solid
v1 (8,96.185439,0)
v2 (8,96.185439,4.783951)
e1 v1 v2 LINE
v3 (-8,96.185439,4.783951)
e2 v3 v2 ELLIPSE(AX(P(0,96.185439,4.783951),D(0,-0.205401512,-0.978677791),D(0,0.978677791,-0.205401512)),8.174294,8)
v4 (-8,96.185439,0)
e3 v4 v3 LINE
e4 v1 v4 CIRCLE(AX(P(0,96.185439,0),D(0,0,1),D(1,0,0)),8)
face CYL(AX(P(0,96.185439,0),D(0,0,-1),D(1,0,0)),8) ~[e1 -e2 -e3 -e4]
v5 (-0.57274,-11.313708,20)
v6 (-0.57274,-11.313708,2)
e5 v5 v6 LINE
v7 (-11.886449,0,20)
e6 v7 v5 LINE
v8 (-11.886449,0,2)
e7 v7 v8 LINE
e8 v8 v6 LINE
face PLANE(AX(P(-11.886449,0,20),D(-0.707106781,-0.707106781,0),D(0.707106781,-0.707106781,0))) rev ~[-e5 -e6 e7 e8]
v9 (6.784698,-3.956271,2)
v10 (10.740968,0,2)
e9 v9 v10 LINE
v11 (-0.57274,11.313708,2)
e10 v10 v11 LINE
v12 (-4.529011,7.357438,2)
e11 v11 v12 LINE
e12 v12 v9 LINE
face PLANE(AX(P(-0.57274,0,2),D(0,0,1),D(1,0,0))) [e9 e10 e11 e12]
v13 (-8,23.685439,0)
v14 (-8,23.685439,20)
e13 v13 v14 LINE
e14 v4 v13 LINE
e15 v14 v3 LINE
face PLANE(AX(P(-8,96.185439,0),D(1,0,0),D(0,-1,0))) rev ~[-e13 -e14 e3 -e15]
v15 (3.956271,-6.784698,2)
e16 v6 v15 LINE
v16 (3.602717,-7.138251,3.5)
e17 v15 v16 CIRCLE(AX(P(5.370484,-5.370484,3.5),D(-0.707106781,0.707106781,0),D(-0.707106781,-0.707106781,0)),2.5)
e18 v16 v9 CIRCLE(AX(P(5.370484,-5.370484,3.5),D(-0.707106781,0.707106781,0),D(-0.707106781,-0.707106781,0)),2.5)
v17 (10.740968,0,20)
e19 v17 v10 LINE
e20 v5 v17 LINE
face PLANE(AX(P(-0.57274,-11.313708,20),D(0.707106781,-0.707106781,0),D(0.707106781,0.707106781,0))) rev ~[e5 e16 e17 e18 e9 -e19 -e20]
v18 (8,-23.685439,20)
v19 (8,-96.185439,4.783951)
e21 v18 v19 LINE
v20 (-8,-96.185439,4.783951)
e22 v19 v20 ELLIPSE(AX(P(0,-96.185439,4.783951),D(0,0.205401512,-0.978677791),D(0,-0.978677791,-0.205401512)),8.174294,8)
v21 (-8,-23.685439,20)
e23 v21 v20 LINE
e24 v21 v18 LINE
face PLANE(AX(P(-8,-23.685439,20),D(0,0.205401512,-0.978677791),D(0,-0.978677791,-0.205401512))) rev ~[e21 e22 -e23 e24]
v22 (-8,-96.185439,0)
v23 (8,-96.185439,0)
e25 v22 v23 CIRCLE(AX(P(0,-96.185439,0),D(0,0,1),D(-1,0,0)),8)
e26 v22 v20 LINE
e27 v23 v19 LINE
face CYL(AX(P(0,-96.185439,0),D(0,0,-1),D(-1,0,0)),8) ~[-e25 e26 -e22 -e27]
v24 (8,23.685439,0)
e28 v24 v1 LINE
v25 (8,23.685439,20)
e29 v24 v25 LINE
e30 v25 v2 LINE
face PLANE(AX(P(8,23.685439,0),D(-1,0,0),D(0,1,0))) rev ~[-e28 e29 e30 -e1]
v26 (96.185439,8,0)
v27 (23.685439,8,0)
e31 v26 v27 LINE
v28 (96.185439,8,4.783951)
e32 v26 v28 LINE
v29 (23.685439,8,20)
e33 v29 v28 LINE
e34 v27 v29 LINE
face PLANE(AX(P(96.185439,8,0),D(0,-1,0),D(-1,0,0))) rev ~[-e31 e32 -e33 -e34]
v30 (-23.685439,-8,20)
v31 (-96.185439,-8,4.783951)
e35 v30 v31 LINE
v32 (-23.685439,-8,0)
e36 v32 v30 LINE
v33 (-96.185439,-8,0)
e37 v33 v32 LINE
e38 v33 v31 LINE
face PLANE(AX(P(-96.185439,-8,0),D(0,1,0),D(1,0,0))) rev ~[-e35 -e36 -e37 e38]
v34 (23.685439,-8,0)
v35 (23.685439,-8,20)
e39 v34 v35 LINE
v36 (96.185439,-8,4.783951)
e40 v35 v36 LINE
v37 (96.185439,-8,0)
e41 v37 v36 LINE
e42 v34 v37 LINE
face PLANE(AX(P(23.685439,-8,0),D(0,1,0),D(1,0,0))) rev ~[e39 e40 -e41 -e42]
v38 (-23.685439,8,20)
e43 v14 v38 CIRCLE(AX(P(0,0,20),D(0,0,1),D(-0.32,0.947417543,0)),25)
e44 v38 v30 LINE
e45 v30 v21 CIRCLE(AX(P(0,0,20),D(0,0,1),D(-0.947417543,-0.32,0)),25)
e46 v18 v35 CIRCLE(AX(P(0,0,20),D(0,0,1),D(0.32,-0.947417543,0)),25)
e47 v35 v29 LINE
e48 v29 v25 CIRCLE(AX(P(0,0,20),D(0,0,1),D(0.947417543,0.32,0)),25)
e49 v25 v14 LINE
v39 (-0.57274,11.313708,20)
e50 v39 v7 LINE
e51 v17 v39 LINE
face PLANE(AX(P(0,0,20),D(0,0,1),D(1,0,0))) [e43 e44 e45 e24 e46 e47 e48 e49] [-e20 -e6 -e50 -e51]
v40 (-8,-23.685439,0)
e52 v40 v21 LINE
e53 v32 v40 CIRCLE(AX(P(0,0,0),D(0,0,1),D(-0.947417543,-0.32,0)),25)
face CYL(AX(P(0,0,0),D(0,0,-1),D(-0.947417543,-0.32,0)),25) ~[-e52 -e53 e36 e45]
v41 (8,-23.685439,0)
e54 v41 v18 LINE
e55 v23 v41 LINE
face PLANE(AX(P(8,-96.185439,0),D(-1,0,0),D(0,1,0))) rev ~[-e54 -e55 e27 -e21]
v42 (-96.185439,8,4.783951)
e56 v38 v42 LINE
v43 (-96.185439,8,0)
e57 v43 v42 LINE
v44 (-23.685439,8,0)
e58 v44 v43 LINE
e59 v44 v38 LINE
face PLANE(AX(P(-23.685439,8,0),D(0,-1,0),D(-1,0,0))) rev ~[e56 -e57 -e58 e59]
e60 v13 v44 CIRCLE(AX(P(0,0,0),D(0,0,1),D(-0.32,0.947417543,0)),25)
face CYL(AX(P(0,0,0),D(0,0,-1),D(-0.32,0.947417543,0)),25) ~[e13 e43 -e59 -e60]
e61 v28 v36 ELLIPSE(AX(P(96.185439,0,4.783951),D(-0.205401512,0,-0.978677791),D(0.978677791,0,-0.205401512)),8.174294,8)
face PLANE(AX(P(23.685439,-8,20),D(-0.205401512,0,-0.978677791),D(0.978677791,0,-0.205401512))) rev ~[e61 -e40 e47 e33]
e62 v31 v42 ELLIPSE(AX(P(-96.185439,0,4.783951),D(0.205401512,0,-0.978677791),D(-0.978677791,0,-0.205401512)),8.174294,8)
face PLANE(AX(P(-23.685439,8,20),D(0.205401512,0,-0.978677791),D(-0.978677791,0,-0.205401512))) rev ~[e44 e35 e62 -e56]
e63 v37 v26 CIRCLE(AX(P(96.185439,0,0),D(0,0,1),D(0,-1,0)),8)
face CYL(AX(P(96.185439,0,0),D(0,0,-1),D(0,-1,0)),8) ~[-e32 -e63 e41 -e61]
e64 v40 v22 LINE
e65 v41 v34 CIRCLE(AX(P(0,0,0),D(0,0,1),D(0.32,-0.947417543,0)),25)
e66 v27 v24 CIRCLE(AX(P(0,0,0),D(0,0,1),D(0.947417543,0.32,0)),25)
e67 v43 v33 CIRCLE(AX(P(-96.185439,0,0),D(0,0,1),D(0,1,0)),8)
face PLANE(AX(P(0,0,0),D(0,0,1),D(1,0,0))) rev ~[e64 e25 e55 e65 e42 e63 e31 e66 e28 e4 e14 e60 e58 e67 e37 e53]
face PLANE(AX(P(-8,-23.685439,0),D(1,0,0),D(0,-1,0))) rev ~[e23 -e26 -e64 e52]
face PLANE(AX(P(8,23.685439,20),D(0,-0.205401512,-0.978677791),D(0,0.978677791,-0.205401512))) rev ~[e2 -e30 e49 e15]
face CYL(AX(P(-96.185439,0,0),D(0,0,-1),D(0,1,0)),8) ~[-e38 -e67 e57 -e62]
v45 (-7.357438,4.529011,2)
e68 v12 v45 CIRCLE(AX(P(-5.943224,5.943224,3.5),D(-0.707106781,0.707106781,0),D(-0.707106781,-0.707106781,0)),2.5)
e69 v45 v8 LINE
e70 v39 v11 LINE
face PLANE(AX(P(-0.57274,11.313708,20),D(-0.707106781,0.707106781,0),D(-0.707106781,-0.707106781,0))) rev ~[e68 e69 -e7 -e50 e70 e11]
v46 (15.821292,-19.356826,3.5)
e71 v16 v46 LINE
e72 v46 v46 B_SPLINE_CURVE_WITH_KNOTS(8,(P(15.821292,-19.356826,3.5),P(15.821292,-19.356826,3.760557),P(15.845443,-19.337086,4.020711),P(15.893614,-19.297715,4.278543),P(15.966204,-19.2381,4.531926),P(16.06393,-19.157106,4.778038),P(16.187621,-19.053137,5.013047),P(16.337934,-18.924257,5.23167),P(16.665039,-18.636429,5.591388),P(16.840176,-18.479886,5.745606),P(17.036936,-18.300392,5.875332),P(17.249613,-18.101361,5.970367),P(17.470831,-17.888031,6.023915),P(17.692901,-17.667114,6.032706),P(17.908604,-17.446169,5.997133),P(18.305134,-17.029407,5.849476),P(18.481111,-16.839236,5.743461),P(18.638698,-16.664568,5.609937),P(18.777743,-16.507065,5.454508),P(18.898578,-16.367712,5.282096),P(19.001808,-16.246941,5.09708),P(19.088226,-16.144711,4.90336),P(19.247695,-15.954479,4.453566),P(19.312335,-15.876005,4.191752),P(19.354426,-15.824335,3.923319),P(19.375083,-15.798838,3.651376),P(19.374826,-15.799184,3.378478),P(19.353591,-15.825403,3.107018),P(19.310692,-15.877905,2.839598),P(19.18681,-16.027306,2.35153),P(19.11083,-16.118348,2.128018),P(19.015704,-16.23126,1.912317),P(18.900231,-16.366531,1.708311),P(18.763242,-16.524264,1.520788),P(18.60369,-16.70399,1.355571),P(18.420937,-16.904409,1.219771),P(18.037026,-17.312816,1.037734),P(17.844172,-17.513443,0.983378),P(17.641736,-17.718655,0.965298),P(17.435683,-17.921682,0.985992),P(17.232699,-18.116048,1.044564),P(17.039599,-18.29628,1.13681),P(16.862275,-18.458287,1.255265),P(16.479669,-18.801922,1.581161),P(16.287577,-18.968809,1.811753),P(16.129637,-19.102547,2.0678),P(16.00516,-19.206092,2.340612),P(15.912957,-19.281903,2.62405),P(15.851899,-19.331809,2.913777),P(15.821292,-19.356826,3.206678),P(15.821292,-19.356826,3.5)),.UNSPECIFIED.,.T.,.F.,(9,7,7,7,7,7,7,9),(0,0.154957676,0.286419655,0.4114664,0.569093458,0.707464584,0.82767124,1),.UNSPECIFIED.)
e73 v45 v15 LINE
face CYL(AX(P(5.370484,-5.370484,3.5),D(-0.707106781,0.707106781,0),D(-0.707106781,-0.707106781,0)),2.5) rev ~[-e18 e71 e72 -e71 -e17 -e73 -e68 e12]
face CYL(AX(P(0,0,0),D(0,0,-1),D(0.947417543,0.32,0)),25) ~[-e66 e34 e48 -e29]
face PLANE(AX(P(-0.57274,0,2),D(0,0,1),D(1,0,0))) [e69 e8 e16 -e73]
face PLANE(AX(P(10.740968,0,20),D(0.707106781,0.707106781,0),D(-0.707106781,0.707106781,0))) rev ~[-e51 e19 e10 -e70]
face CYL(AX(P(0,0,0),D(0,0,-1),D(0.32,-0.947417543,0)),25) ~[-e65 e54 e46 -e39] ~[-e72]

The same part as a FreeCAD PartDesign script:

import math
import FreeCAD as App
import Part
import Sketcher
Q = App.Units.Quantity


def add_polygon(sketch, points):
    """Adds a closed chain of lines whose ends are joined by coincident constraints."""
    first, n = sketch.GeometryCount, len(points)
    for a, b in zip(points, points[1:] + points[:1]):
        sketch.addGeometry(Part.LineSegment(App.Vector(*a, 0), App.Vector(*b, 0)), False)
    for i in range(n):
        sketch.addConstraint(Sketcher.Constraint("Coincident", first + i, 2, first + (i + 1) % n, 1))

doc = App.newDocument("Part")
body = doc.addObject("PartDesign::Body", "Body")

# Sketch on XY plane
sketch1 = doc.addObject("Sketcher::SketchObject", "Sketch")
body.addObject(sketch1)
sketch1.AttachmentSupport = (doc.XY_Plane, [""])
sketch1.MapMode = "FlatFace"
sketch1.addGeometry(Part.ArcOfCircle(Part.Circle(App.Vector(0, 0, 0), App.Vector(0, 0, 1), 25), math.radians(18.662925), math.radians(71.337075)), False)
sketch1.addGeometry(Part.LineSegment(App.Vector(8, 23.685439, 0), App.Vector(8, 96.185439, 0)), False)
sketch1.addGeometry(Part.ArcOfCircle(Part.Circle(App.Vector(0, 96.185439, 0), App.Vector(0, 0, 1), 8), math.radians(0), math.radians(180)), False)
sketch1.addGeometry(Part.LineSegment(App.Vector(-8, 96.185439, 0), App.Vector(-8, 23.685439, 0)), False)
sketch1.addGeometry(Part.ArcOfCircle(Part.Circle(App.Vector(0, 0, 0), App.Vector(0, 0, 1), 25), math.radians(108.662925), math.radians(161.337075)), False)
sketch1.addGeometry(Part.LineSegment(App.Vector(-23.685439, 8, 0), App.Vector(-96.185439, 8, 0)), False)
sketch1.addGeometry(Part.ArcOfCircle(Part.Circle(App.Vector(-96.185439, 0, 0), App.Vector(0, 0, 1), 8), math.radians(90), math.radians(270)), False)
sketch1.addGeometry(Part.LineSegment(App.Vector(-96.185439, -8, 0), App.Vector(-23.685439, -8, 0)), False)
sketch1.addGeometry(Part.ArcOfCircle(Part.Circle(App.Vector(0, 0, 0), App.Vector(0, 0, 1), 25), math.radians(-161.337075), math.radians(-108.662925)), False)
sketch1.addGeometry(Part.LineSegment(App.Vector(-8, -23.685439, 0), App.Vector(-8, -96.185439, 0)), False)
sketch1.addGeometry(Part.ArcOfCircle(Part.Circle(App.Vector(0, -96.185439, 0), App.Vector(0, 0, 1), 8), math.radians(180), math.radians(360)), False)
sketch1.addGeometry(Part.LineSegment(App.Vector(8, -96.185439, 0), App.Vector(8, -23.685439, 0)), False)
sketch1.addGeometry(Part.ArcOfCircle(Part.Circle(App.Vector(0, 0, 0), App.Vector(0, 0, 1), 25), math.radians(-71.337075), math.radians(-18.662925)), False)
sketch1.addGeometry(Part.LineSegment(App.Vector(23.685439, -8, 0), App.Vector(96.185439, -8, 0)), False)
sketch1.addGeometry(Part.ArcOfCircle(Part.Circle(App.Vector(96.185439, 0, 0), App.Vector(0, 0, 1), 8), math.radians(-90), math.radians(90)), False)
sketch1.addGeometry(Part.LineSegment(App.Vector(96.185439, 8, 0), App.Vector(23.685439, 8, 0)), False)
sketch1.addConstraint(Sketcher.Constraint("Coincident", 0, 2, 1, 1))
sketch1.addConstraint(Sketcher.Constraint("Tangent", 1, 2, 2, 1))
sketch1.addConstraint(Sketcher.Constraint("Tangent", 2, 2, 3, 1))
sketch1.addConstraint(Sketcher.Constraint("Coincident", 3, 2, 4, 1))
sketch1.addConstraint(Sketcher.Constraint("Coincident", 4, 2, 5, 1))
sketch1.addConstraint(Sketcher.Constraint("Tangent", 5, 2, 6, 1))
sketch1.addConstraint(Sketcher.Constraint("Tangent", 6, 2, 7, 1))
sketch1.addConstraint(Sketcher.Constraint("Coincident", 7, 2, 8, 1))
sketch1.addConstraint(Sketcher.Constraint("Coincident", 8, 2, 9, 1))
sketch1.addConstraint(Sketcher.Constraint("Tangent", 9, 2, 10, 1))
sketch1.addConstraint(Sketcher.Constraint("Tangent", 10, 2, 11, 1))
sketch1.addConstraint(Sketcher.Constraint("Coincident", 11, 2, 12, 1))
sketch1.addConstraint(Sketcher.Constraint("Coincident", 12, 2, 13, 1))
sketch1.addConstraint(Sketcher.Constraint("Tangent", 13, 2, 14, 1))
sketch1.addConstraint(Sketcher.Constraint("Tangent", 14, 2, 15, 1))
sketch1.addConstraint(Sketcher.Constraint("Coincident", 15, 2, 0, 1))
sketch1.addConstraint(Sketcher.Constraint("Vertical", 1))
sketch1.addConstraint(Sketcher.Constraint("Vertical", 3))
sketch1.addConstraint(Sketcher.Constraint("Horizontal", 5))
sketch1.addConstraint(Sketcher.Constraint("Horizontal", 7))
sketch1.addConstraint(Sketcher.Constraint("Vertical", 9))
sketch1.addConstraint(Sketcher.Constraint("Vertical", 11))
sketch1.addConstraint(Sketcher.Constraint("Horizontal", 13))
sketch1.addConstraint(Sketcher.Constraint("Horizontal", 15))
sketch1.addConstraint(Sketcher.Constraint("Coincident", 0, 3, -1, 1))
sketch1.addConstraint(Sketcher.Constraint("Coincident", 4, 3, -1, 1))
sketch1.addConstraint(Sketcher.Constraint("Coincident", 8, 3, -1, 1))
sketch1.addConstraint(Sketcher.Constraint("Coincident", 12, 3, -1, 1))
sketch1.addConstraint(Sketcher.Constraint("Equal", 0, 4))
sketch1.addConstraint(Sketcher.Constraint("Equal", 2, 6))
sketch1.addConstraint(Sketcher.Constraint("Equal", 4, 8))
sketch1.addConstraint(Sketcher.Constraint("Equal", 6, 10))
sketch1.addConstraint(Sketcher.Constraint("Equal", 8, 12))
sketch1.addConstraint(Sketcher.Constraint("Equal", 10, 14))
sketch1.addConstraint(Sketcher.Constraint("Symmetric", 2, 3, 10, 3, -1, 1))
sketch1.addConstraint(Sketcher.Constraint("Symmetric", 6, 3, 14, 3, -1, 1))
sketch1.addConstraint(Sketcher.Constraint("PointOnObject", 2, 3, -2))
sketch1.addConstraint(Sketcher.Constraint("PointOnObject", 6, 3, -1))
sketch1.addConstraint(Sketcher.Constraint("Equal", 15, 1))
sketch1.addConstraint(Sketcher.Constraint("Radius", 0, Q("25 mm")))
sketch1.addConstraint(Sketcher.Constraint("Radius", 2, Q("8 mm")))
sketch1.addConstraint(Sketcher.Constraint("DistanceX", 5, 2, 5, 1, Q("72.5 mm")))
pad1 = doc.addObject("PartDesign::Pad", "Pad")
body.addObject(pad1)
pad1.Profile = sketch1
pad1.Length = 20

# Sketch on YZ plane
sketch2 = doc.addObject("Sketcher::SketchObject", "Sketch001")
body.addObject(sketch2)
sketch2.AttachmentSupport = (doc.YZ_Plane, [""])
sketch2.MapMode = "FlatFace"
sketch2.AttachmentOffset = App.Placement(App.Vector(0, 0, 8), App.Rotation())
add_polygon(sketch2, [(104.685439, 20), (23.685439, 20), (104.685439, 3)])  # lines 0-2
sketch2.addConstraint(Sketcher.Constraint("Horizontal", 0))
sketch2.addConstraint(Sketcher.Constraint("Vertical", 2))
sketch2.addConstraint(Sketcher.Constraint("DistanceX", 0, 2, 0, 1, Q("81 mm")))
sketch2.addConstraint(Sketcher.Constraint("DistanceY", 2, 1, 2, 2, Q("17 mm")))
sketch2.addConstraint(Sketcher.Constraint("DistanceY", -1, 1, 0, 2, Q("20 mm")))
sketch2.addConstraint(Sketcher.Constraint("DistanceX", -1, 1, 0, 2, Q("23.685439 mm")))
pocket1 = doc.addObject("PartDesign::Pocket", "Pocket")
body.addObject(pocket1)
pocket1.Profile = sketch2
pocket1.Type = "ThroughAll"

# Sketch on XZ plane
sketch3 = doc.addObject("Sketcher::SketchObject", "Sketch002")
body.addObject(sketch3)
sketch3.AttachmentSupport = (doc.XZ_Plane, [""])
sketch3.MapMode = "FlatFace"
sketch3.AttachmentOffset = App.Placement(App.Vector(0, 0, -8), App.Rotation())
add_polygon(sketch3, [(-104.685439, 20), (-23.685439, 20), (-104.685439, 3)])  # lines 0-2
sketch3.addConstraint(Sketcher.Constraint("Horizontal", 0))
sketch3.addConstraint(Sketcher.Constraint("Vertical", 2))
sketch3.addConstraint(Sketcher.Constraint("DistanceX", 0, 1, 0, 2, Q("81 mm")))
sketch3.addConstraint(Sketcher.Constraint("DistanceY", 2, 1, 2, 2, Q("17 mm")))
sketch3.addConstraint(Sketcher.Constraint("DistanceY", -1, 1, 0, 2, Q("20 mm")))
sketch3.addConstraint(Sketcher.Constraint("DistanceX", 0, 2, -1, 1, Q("23.685439 mm")))
pocket2 = doc.addObject("PartDesign::Pocket", "Pocket001")
body.addObject(pocket2)
pocket2.Profile = sketch3
pocket2.Type = "ThroughAll"
pocket2.Reversed = True

# Sketch on YZ plane
sketch4 = doc.addObject("Sketcher::SketchObject", "Sketch003")
body.addObject(sketch4)
sketch4.AttachmentSupport = (doc.YZ_Plane, [""])
sketch4.MapMode = "FlatFace"
sketch4.AttachmentOffset = App.Placement(App.Vector(0, 0, -8), App.Rotation())
add_polygon(sketch4, [(-104.685439, 20), (-23.685439, 20), (-104.685439, 3)])  # lines 0-2
sketch4.addConstraint(Sketcher.Constraint("Horizontal", 0))
sketch4.addConstraint(Sketcher.Constraint("Vertical", 2))
sketch4.addConstraint(Sketcher.Constraint("DistanceX", 0, 1, 0, 2, Q("81 mm")))
sketch4.addConstraint(Sketcher.Constraint("DistanceY", 2, 1, 2, 2, Q("17 mm")))
sketch4.addConstraint(Sketcher.Constraint("DistanceY", -1, 1, 0, 2, Q("20 mm")))
sketch4.addConstraint(Sketcher.Constraint("DistanceX", 0, 2, -1, 1, Q("23.685439 mm")))
pocket3 = doc.addObject("PartDesign::Pocket", "Pocket002")
body.addObject(pocket3)
pocket3.Profile = sketch4
pocket3.Type = "ThroughAll"
pocket3.Reversed = True

# Sketch on XY plane
sketch5 = doc.addObject("Sketcher::SketchObject", "Sketch004")
body.addObject(sketch5)
sketch5.AttachmentSupport = (doc.XY_Plane, [""])
sketch5.MapMode = "FlatFace"
sketch5.AttachmentOffset = App.Placement(App.Vector(0, 0, 20), App.Rotation())
add_polygon(sketch5, [(10.740968, 0), (-0.57274, 11.313708), (-11.886449, 0), (-0.57274, -11.313708)])  # lines 0-3
sketch5.addConstraint(Sketcher.Constraint("Symmetric", 0, 2, 2, 2, -1))
sketch5.addConstraint(Sketcher.Constraint("PointOnObject", 1, 2, -1))
sketch5.addConstraint(Sketcher.Constraint("PointOnObject", 3, 2, -1))
sketch5.addConstraint(Sketcher.Constraint("Perpendicular", 0, 1))
sketch5.addConstraint(Sketcher.Constraint("Perpendicular", 1, 2))
sketch5.addConstraint(Sketcher.Constraint("Distance", 0, Q("16 mm")))
sketch5.addConstraint(Sketcher.Constraint("DistanceX", 0, 2, -1, 1, Q("0.57274 mm")))
pocket4 = doc.addObject("PartDesign::Pocket", "Pocket003")
body.addObject(pocket4)
pocket4.Profile = sketch5
pocket4.Length = 18

# Sketch on an angled plane
sketch6 = doc.addObject("Sketcher::SketchObject", "Sketch005")
body.addObject(sketch6)
sketch6.Placement = App.Placement(App.Vector(5.370484, -5.370484, 0), App.Rotation(App.Vector(-0.707106781, -0.707106781, 0), App.Vector(0, 0, 0.999999999), App.Vector(-0.707106781, 0.707106781, 0), "ZXY"))
sketch6.addGeometry(Part.Circle(App.Vector(0, 3.5, 0), App.Vector(0, 0, 1), 2.5), False)
sketch6.addConstraint(Sketcher.Constraint("PointOnObject", 0, 3, -2))
sketch6.addConstraint(Sketcher.Constraint("Diameter", 0, Q("5 mm")))
sketch6.addConstraint(Sketcher.Constraint("DistanceY", -1, 1, 0, 3, Q("3.5 mm")))
pocket5 = doc.addObject("PartDesign::Pocket", "Pocket004")
body.addObject(pocket5)
pocket5.Profile = sketch6
pocket5.Type = "TwoLengths"
pocket5.Length = 17.404988
pocket5.Length2 = 16

# Sketch on XZ plane
sketch7 = doc.addObject("Sketcher::SketchObject", "Sketch006")
body.addObject(sketch7)
sketch7.AttachmentSupport = (doc.XZ_Plane, [""])
sketch7.MapMode = "FlatFace"
sketch7.AttachmentOffset = App.Placement(App.Vector(0, 0, 8), App.Rotation())
add_polygon(sketch7, [(104.685439, 20), (23.685439, 20), (104.685439, 3)])  # lines 0-2
sketch7.addConstraint(Sketcher.Constraint("Horizontal", 0))
sketch7.addConstraint(Sketcher.Constraint("Vertical", 2))
sketch7.addConstraint(Sketcher.Constraint("DistanceX", 0, 2, 0, 1, Q("81 mm")))
sketch7.addConstraint(Sketcher.Constraint("DistanceY", 2, 1, 2, 2, Q("17 mm")))
sketch7.addConstraint(Sketcher.Constraint("DistanceY", -1, 1, 0, 2, Q("20 mm")))
sketch7.addConstraint(Sketcher.Constraint("DistanceX", -1, 1, 0, 2, Q("23.685439 mm")))
pocket6 = doc.addObject("PartDesign::Pocket", "Pocket005")
body.addObject(pocket6)
pocket6.Profile = sketch7
pocket6.Type = "ThroughAll"

doc.recompute()
